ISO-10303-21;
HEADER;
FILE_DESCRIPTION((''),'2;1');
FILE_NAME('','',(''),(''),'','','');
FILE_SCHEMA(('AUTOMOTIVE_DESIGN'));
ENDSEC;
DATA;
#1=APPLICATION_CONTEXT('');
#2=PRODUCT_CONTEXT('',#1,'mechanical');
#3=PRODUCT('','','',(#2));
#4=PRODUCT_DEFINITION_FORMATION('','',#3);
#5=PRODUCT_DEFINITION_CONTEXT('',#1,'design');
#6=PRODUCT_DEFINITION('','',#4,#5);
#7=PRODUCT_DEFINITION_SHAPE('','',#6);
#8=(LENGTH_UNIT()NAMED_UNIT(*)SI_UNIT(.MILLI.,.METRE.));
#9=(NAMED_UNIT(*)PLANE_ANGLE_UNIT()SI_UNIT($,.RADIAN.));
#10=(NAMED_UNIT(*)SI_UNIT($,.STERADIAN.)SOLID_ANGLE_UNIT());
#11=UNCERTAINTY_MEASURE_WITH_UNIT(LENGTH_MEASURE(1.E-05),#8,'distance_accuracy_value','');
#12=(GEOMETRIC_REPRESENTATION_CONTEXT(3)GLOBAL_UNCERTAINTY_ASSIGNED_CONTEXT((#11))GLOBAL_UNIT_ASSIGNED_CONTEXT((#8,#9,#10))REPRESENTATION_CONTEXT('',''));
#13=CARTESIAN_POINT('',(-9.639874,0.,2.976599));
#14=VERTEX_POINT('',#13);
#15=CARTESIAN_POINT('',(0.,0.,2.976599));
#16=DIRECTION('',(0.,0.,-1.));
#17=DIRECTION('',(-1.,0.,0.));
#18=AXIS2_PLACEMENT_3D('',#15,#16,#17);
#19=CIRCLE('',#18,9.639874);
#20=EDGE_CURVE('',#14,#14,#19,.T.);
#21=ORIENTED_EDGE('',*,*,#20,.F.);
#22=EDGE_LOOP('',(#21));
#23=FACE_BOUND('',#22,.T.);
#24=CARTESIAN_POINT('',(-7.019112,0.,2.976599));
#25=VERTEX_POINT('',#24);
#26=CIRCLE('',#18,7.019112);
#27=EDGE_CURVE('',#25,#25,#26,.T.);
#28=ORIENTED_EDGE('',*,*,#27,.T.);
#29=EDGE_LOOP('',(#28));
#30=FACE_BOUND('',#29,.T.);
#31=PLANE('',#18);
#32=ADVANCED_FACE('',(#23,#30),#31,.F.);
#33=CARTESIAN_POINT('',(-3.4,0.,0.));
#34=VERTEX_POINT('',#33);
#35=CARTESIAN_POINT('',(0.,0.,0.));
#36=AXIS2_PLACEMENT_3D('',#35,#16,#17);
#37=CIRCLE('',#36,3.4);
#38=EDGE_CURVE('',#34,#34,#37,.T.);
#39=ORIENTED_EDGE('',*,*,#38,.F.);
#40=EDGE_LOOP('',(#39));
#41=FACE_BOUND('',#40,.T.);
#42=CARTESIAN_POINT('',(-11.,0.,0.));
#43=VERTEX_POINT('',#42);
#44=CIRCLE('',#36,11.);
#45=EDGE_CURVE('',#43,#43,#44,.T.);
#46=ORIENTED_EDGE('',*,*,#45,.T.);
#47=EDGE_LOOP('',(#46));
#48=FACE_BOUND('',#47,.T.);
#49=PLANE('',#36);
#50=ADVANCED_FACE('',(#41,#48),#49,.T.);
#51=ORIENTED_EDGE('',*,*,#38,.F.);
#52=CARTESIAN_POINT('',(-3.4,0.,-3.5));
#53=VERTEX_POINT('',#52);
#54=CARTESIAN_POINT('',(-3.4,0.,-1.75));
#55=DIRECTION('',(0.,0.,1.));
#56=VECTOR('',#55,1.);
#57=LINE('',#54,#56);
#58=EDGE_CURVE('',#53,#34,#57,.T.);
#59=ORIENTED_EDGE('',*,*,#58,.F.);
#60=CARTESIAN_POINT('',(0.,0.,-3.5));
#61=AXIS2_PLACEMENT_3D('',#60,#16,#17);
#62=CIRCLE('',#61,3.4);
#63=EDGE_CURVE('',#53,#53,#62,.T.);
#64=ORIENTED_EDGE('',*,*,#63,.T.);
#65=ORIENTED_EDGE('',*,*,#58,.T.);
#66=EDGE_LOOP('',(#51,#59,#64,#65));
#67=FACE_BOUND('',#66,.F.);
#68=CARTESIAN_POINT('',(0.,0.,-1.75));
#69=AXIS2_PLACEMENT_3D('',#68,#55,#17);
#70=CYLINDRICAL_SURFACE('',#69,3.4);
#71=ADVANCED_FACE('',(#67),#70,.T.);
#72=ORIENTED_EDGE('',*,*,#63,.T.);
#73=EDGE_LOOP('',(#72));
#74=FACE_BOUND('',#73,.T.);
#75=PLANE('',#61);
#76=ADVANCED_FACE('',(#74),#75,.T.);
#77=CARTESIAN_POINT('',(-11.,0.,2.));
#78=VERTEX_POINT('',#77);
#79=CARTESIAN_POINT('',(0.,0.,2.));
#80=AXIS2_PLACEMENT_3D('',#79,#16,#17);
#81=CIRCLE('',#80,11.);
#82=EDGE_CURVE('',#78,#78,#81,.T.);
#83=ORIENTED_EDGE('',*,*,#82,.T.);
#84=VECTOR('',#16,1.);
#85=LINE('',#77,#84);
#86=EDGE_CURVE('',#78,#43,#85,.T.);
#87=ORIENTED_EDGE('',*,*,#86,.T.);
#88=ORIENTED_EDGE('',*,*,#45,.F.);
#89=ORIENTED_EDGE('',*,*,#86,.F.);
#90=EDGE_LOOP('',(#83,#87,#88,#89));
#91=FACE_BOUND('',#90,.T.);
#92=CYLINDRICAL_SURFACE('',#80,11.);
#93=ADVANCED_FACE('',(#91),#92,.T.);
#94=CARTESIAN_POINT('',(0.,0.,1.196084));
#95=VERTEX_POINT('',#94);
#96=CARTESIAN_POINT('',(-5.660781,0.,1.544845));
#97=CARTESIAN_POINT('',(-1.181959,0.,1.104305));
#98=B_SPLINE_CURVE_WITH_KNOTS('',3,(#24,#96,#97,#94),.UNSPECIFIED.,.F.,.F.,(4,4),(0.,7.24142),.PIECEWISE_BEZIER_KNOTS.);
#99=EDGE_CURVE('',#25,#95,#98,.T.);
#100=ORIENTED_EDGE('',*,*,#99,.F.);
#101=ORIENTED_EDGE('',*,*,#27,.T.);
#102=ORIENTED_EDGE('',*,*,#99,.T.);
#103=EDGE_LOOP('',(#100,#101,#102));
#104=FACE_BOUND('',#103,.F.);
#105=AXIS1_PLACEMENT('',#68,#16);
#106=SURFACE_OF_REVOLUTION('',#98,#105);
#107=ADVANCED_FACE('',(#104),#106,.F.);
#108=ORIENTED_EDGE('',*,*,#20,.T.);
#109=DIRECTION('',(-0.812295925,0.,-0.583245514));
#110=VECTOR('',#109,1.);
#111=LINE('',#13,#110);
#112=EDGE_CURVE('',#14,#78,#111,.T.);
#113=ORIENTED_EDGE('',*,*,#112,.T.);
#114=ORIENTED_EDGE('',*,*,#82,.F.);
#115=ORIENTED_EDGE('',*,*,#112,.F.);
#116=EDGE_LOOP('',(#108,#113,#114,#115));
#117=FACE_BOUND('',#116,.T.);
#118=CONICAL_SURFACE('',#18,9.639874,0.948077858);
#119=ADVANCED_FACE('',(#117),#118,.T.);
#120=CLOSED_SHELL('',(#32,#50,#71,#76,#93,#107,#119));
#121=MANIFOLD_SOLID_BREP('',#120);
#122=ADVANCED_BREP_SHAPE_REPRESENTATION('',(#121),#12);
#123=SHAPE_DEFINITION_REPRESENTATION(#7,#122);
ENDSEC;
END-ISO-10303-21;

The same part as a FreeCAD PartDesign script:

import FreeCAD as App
import Part
import Sketcher
from FreeCAD import Vector
Q = App.Units.Quantity

doc = App.newDocument("Part")
params = doc.addObject("Spreadsheet::Sheet", "Params")
for row, (alias, value) in enumerate([
    ("sketch1_height", "2 mm"),
    ("sketch1_width", "7.6 mm"),
    ("sketch1_width2", "3.4 mm"),
    ("sketch1_height2", "3.5 mm"),
    ("revolution_angle", "360 deg"),
], start=1):
    params.set(f"A{row}", alias)
    params.set(f"B{row}", "=" + value)
    params.setAlias(f"B{row}", alias)

body = doc.addObject("PartDesign::Body", "Body")

# Sketch on XZ plane
sketch1 = doc.addObject("Sketcher::SketchObject", "Sketch")
body.addObject(sketch1)
sketch1.AttachmentSupport = (doc.XZ_Plane, [""])
sketch1.MapMode = "FlatFace"
sketch1.addGeometry([
    Part.BSplineCurve([Vector(-7.019112, 2.976599, 0), Vector(-5.660781, 1.544845, 0), Vector(-1.181959, 1.104305, 0), Vector(0, 1.196084, 0)], [4, 4], [0, 7.24142], False, 3, [1, 1, 1, 1], False),  # 0
    Part.LineSegment(Vector(-7.019112, 2.976599, 0), Vector(-9.639874, 2.976599, 0)),  # 1
    Part.LineSegment(Vector(-9.639874, 2.976599, 0), Vector(-11, 2, 0)),  # 2
    Part.LineSegment(Vector(-11, 2, 0), Vector(-11, 0, 0)),  # 3
    Part.LineSegment(Vector(-11, 0, 0), Vector(-3.4, 0, 0)),  # 4
    Part.LineSegment(Vector(-3.4, 0, 0), Vector(-3.4, -3.5, 0)),  # 5
    Part.LineSegment(Vector(-3.4, -3.5, 0), Vector(0, -3.5, 0)),  # 6
    Part.LineSegment(Vector(0, -3.5, 0), Vector(0, 1.196084, 0)),  # 7
], False)
sketch1.addConstraint([
    Sketcher.Constraint("Block", 0),
    Sketcher.Constraint("Coincident", 0, 1, 1, 1),
    Sketcher.Constraint("Coincident", 1, 2, 2, 1),
    Sketcher.Constraint("Coincident", 2, 2, 3, 1),
    Sketcher.Constraint("Coincident", 3, 2, 4, 1),
    Sketcher.Constraint("Coincident", 4, 2, 5, 1),
    Sketcher.Constraint("Coincident", 5, 2, 6, 1),
    Sketcher.Constraint("Coincident", 6, 2, 7, 1),
    Sketcher.Constraint("Coincident", 7, 2, 0, 2),
    Sketcher.Constraint("Horizontal", 1),
    Sketcher.Constraint("Vertical", 3),
    Sketcher.Constraint("Horizontal", 4),
    Sketcher.Constraint("Vertical", 5),
    Sketcher.Constraint("Horizontal", 6),
    Sketcher.Constraint("Vertical", 7),
    Sketcher.Constraint("PointOnObject", 3, 2, -1),
    Sketcher.Constraint("DistanceY", 3, 2, 3, 1, Q("2 mm")),
    Sketcher.Constraint("DistanceX", 4, 1, 4, 2, Q("7.6 mm")),
    Sketcher.Constraint("DistanceX", 6, 1, 6, 2, Q("3.4 mm")),
    Sketcher.Constraint("DistanceY", 5, 2, 5, 1, Q("3.5 mm")),
    Sketcher.Constraint("Distance", 2, Q("1.674422 mm")),
])
sketch1.setExpression("Constraints[16]", "Params.sketch1_height")
sketch1.setExpression("Constraints[17]", "Params.sketch1_width")
sketch1.setExpression("Constraints[18]", "Params.sketch1_width2")
sketch1.setExpression("Constraints[19]", "Params.sketch1_height2")
revolution = doc.addObject("PartDesign::Revolution", "Revolution")
body.addObject(revolution)
revolution.Profile = sketch1
revolution.ReferenceAxis = (sketch1, ["V_Axis"])
revolution.setExpression("Angle", "Params.revolution_angle")

doc.recompute()
